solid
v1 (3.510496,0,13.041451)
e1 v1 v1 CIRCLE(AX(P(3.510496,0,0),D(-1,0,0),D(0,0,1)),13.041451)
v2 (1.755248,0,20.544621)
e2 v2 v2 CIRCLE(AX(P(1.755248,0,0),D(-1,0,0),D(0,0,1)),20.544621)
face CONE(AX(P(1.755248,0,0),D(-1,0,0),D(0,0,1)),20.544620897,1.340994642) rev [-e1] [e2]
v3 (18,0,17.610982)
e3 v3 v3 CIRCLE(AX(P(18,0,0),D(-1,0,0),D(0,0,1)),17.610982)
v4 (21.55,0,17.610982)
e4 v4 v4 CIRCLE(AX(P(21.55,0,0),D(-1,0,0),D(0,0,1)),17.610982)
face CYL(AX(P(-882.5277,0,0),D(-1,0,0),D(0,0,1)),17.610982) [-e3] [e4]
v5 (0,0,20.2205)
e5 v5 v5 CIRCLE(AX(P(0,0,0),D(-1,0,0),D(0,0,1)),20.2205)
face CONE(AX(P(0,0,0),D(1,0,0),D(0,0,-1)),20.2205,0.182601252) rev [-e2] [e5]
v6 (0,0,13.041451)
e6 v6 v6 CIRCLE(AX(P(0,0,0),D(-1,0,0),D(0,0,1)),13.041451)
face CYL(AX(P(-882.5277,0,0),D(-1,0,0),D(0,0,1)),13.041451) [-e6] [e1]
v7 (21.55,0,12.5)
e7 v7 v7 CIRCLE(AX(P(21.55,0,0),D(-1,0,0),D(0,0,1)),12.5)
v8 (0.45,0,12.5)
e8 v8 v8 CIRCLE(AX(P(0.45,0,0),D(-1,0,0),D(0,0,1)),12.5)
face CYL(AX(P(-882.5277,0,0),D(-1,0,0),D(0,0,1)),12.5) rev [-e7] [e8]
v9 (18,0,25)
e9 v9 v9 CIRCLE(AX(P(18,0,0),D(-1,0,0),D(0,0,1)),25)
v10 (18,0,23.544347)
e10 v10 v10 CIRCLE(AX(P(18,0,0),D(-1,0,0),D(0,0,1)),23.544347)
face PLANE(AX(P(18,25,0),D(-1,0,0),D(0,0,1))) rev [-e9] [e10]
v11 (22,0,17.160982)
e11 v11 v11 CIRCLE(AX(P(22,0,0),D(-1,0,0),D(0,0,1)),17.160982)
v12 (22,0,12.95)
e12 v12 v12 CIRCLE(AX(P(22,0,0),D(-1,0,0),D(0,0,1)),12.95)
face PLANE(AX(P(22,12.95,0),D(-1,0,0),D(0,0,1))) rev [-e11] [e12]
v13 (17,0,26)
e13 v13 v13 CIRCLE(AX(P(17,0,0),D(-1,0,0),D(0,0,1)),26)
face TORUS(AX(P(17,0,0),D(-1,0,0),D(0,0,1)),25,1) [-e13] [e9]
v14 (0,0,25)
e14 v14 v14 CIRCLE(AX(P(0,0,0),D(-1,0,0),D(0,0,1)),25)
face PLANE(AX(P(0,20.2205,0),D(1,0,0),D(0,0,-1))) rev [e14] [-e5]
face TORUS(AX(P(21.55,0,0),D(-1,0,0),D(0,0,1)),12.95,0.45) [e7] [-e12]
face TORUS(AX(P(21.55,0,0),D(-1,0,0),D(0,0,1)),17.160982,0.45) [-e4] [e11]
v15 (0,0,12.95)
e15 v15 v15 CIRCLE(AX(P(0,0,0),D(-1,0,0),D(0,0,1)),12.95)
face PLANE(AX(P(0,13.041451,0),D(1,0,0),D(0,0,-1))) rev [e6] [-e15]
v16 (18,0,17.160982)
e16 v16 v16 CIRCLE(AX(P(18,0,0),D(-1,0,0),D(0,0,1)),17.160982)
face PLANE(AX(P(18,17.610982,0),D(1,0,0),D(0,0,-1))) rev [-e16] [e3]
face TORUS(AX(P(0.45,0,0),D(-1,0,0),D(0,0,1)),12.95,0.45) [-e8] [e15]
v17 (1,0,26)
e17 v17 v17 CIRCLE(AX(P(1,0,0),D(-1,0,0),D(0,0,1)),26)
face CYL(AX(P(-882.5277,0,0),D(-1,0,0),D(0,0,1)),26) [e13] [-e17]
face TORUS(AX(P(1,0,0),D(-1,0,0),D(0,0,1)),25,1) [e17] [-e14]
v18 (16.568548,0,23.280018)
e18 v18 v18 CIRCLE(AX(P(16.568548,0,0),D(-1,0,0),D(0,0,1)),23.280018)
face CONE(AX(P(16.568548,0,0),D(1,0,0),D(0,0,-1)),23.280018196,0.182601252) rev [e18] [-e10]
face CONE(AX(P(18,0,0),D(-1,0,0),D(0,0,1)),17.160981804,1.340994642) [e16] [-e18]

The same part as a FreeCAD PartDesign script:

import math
import FreeCAD as App
import Part
import Sketcher

V = App.Vector

doc = App.newDocument("Part")
body = doc.addObject("PartDesign::Body", "Body")

# Sketch on XY plane
sketch1 = body.newObject("Sketcher::SketchObject", "Sketch")
sketch1.AttachmentSupport = (doc.getObject("XY_Plane"), [""])
sketch1.MapMode = "FlatFace"
sketch1.addGeometry([
    Part.LineSegment(V(0, 20.22, 0), V(1.76, 20.54, 0)),  # 0
    Part.LineSegment(V(1.76, 20.54, 0), V(3.51, 13.04, 0)),  # 1
    Part.LineSegment(V(3.51, 13.04, 0), V(0, 13.04, 0)),  # 2
    Part.LineSegment(V(0, 13.04, 0), V(0, 12.95, 0)),  # 3
    Part.ArcOfCircle(Part.Circle(V(0.45, 12.95, 0), V(0, 0, 1), 0.45), math.radians(180), math.radians(270)),  # 4
    Part.LineSegment(V(0.45, 12.5, 0), V(21.55, 12.5, 0)),  # 5
    Part.ArcOfCircle(Part.Circle(V(21.55, 12.95, 0), V(0, 0, 1), 0.45), math.radians(-90), math.radians(0)),  # 6
    Part.LineSegment(V(22, 12.95, 0), V(22, 17.16, 0)),  # 7
    Part.ArcOfCircle(Part.Circle(V(21.55, 17.16, 0), V(0, 0, 1), 0.45), math.radians(0), math.radians(90)),  # 8
    Part.LineSegment(V(21.55, 17.61, 0), V(18, 17.61, 0)),  # 9
    Part.LineSegment(V(18, 17.61, 0), V(18, 17.16, 0)),  # 10
    Part.LineSegment(V(18, 17.16, 0), V(16.57, 23.28, 0)),  # 11
    Part.LineSegment(V(16.57, 23.28, 0), V(18, 23.54, 0)),  # 12
    Part.LineSegment(V(18, 23.54, 0), V(18, 25, 0)),  # 13
    Part.ArcOfCircle(Part.Circle(V(17, 25, 0), V(0, 0, 1), 1), math.radians(0), math.radians(90)),  # 14
    Part.LineSegment(V(17, 26, 0), V(1, 26, 0)),  # 15
    Part.ArcOfCircle(Part.Circle(V(1, 25, 0), V(0, 0, 1), 1), math.radians(90), math.radians(180)),  # 16
    Part.LineSegment(V(0, 25, 0), V(0, 20.22, 0)),  # 17
], False)
sketch1.addConstraint([
    Sketcher.Constraint("Coincident", 0, 2, 1, 1),
    Sketcher.Constraint("Coincident", 1, 2, 2, 1),
    Sketcher.Constraint("Coincident", 2, 2, 3, 1),
    Sketcher.Constraint("Tangent", 3, 2, 4, 1),
    Sketcher.Constraint("Tangent", 4, 2, 5, 1),
    Sketcher.Constraint("Tangent", 5, 2, 6, 1),
    Sketcher.Constraint("Tangent", 6, 2, 7, 1),
    Sketcher.Constraint("Tangent", 7, 2, 8, 1),
    Sketcher.Constraint("Tangent", 8, 2, 9, 1),
    Sketcher.Constraint("Coincident", 9, 2, 10, 1),
    Sketcher.Constraint("Coincident", 10, 2, 11, 1),
    Sketcher.Constraint("Coincident", 11, 2, 12, 1),
    Sketcher.Constraint("Coincident", 12, 2, 13, 1),
    Sketcher.Constraint("Tangent", 13, 2, 14, 1),
    Sketcher.Constraint("Tangent", 14, 2, 15, 1),
    Sketcher.Constraint("Tangent", 15, 2, 16, 1),
    Sketcher.Constraint("Tangent", 16, 2, 17, 1),
    Sketcher.Constraint("Coincident", 17, 2, 0, 1),
    Sketcher.Constraint("Horizontal", 2),
    Sketcher.Constraint("Vertical", 3),
    Sketcher.Constraint("Horizontal", 5),
    Sketcher.Constraint("Vertical", 7),
    Sketcher.Constraint("Horizontal", 9),
    Sketcher.Constraint("Vertical", 10),
    Sketcher.Constraint("Vertical", 13),
    Sketcher.Constraint("Horizontal", 15),
    Sketcher.Constraint("Vertical", 17),
    Sketcher.Constraint("Equal", 4, 6),
    Sketcher.Constraint("Equal", 6, 8),
    Sketcher.Constraint("Equal", 14, 16),
    Sketcher.Constraint("PointOnObject", 2, 2, -2),
    Sketcher.Constraint("PointOnObject", 16, 2, -2),
    Sketcher.Constraint("Parallel", 1, 11),
    Sketcher.Constraint("Parallel", 0, 12),
    Sketcher.Constraint("Horizontal", 7, 2, 10, 2),
    Sketcher.Constraint("Vertical", 10, 2, 12, 2),
    Sketcher.Constraint("Radius", 14, 1.0),
    Sketcher.Constraint("DistanceX", 15, 2, 15, 1, 16.0),
    Sketcher.Constraint("Radius", 4, 0.45),
    Sketcher.Constraint("DistanceX", 5, 1, 5, 2, 21.1),
    Sketcher.Constraint("DistanceY", -1, 1, 14, 3, 25.0),
    Sketcher.Constraint("DistanceY", -1, 1, 4, 2, 12.5),
    Sketcher.Constraint("DistanceY", 17, 2, 17, 1, 4.7795),
    Sketcher.Constraint("DistanceY", 3, 2, 3, 1, 0.091451),
    Sketcher.Constraint("DistanceY", 7, 1, 7, 2, 4.210982),
    Sketcher.Constraint("Distance", 1, 7.705741),
    Sketcher.Constraint("Distance", 11, 6.284239),
    Sketcher.Constraint("DistanceX", 2, 2, 2, 1, 3.510496),
    Sketcher.Constraint("DistanceY", 13, 1, 13, 2, 1.455653),
])
revolution = body.newObject("PartDesign::Revolution", "Revolution")
revolution.Profile = sketch1
revolution.ReferenceAxis = (sketch1, ["H_Axis"])
revolution.Angle = 360

doc.recompute()
